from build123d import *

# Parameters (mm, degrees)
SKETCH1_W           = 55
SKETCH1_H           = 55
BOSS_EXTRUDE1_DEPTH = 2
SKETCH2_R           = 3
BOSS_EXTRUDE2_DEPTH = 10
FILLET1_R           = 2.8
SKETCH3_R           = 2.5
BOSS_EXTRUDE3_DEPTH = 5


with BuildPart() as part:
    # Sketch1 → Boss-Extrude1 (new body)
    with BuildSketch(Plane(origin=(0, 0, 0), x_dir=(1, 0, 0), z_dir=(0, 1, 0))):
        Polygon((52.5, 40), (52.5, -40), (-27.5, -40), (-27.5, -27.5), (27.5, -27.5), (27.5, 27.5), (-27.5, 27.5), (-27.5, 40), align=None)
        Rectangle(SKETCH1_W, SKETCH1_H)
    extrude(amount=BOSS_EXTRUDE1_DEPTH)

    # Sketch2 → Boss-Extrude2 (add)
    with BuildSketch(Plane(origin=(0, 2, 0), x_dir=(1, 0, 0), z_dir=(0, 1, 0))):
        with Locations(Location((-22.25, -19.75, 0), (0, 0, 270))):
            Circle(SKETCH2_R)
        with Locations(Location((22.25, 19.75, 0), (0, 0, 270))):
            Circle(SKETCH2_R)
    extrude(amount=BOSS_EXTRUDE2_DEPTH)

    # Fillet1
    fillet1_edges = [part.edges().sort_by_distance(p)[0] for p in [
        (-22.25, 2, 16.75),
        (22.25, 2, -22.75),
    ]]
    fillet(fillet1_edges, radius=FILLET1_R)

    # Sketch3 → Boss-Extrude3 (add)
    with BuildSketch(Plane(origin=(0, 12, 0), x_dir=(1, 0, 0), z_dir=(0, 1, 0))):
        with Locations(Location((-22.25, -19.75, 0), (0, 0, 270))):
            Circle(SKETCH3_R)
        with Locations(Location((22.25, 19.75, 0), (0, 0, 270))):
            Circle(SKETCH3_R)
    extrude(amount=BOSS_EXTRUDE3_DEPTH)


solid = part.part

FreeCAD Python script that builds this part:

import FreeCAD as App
import Part
import Sketcher
from FreeCAD import Vector


def edges_at(feature, points):
    """Names of the edges that pass closest to the given points."""
    edges = feature.Shape.Edges
    near = lambda p: min(range(len(edges)), key=lambda i: edges[i].distToShape(Part.Vertex(*p))[0])
    return sorted({f"Edge{near(p) + 1}" for p in points})

doc = App.newDocument("Part")
params = doc.addObject("Spreadsheet::Sheet", "Params")
for row, (alias, value) in enumerate([
    ("sketch1_width", "80 mm"),
    ("pad1_length", "2 mm"),
    ("sketch2_diameter", "6 mm"),
    ("pad2_length", "10 mm"),
    ("fillet_radius", "2.8 mm"),
    ("sketch3_diameter", "5 mm"),
    ("pad3_length", "5 mm"),
], start=1):
    params.set(f"A{row}", alias)
    params.set(f"B{row}", "=" + value)
    params.setAlias(f"B{row}", alias)

body = doc.addObject("PartDesign::Body", "Body")

# Sketch on XZ plane
sketch1 = body.newObject("Sketcher::SketchObject", "Sketch")
sketch1.AttachmentSupport = (doc.getObject("XZ_Plane"), [""])
sketch1.MapMode = "FlatFace"
sketch1.addGeometry([
    Part.LineSegment(Vector(52, 40, 0), Vector(52, -40, 0)),
    Part.LineSegment(Vector(52, -40, 0), Vector(-28, -40, 0)),
    Part.LineSegment(Vector(-28, -40, 0), Vector(-28, 40, 0)),
    Part.LineSegment(Vector(-28, 40, 0), Vector(52, 40, 0)),
], False)
sketch1.addConstraint([
    Sketcher.Constraint("Coincident", 0, 2, 1, 1),
    Sketcher.Constraint("Coincident", 1, 2, 2, 1),
    Sketcher.Constraint("Coincident", 2, 2, 3, 1),
    Sketcher.Constraint("Coincident", 3, 2, 0, 1),
    Sketcher.Constraint("Vertical", 0),
    Sketcher.Constraint("Horizontal", 1),
    Sketcher.Constraint("Vertical", 2),
    Sketcher.Constraint("Horizontal", 3),
    Sketcher.Constraint("Equal", 3, 0),
    Sketcher.Constraint("DistanceX", 1, 2, 1, 1, 80.0),
    Sketcher.Constraint("DistanceY", 0, 2, -1, 1, 40.0),
    Sketcher.Constraint("DistanceX", -1, 1, 0, 2, 52.5),
])
sketch1.setExpression("Constraints[9]", "Params.sketch1_width")
pad1 = body.newObject("PartDesign::Pad", "Pad")
pad1.Profile = sketch1
pad1.setExpression("Length", "Params.pad1_length")
pad1.Reversed = True

# Sketch on XZ plane
sketch2 = body.newObject("Sketcher::SketchObject", "Sketch001")
sketch2.AttachmentSupport = (doc.getObject("XZ_Plane"), [""])
sketch2.MapMode = "FlatFace"
sketch2.AttachmentOffset = App.Placement(Vector(0, 0, -2), App.Rotation())
sketch2.addGeometry([
    Part.Circle(Vector(-22.2, 19.8, 0), Vector(0, 0, 1), 3),
    Part.Circle(Vector(22.2, -19.8, 0), Vector(0, 0, 1), 3),
], False)
sketch2.addConstraint([
    Sketcher.Constraint("Equal", 0, 1),
    Sketcher.Constraint("Symmetric", 0, 3, 1, 3, -1, 1),
    Sketcher.Constraint("Diameter", 0, 6.0),
    Sketcher.Constraint("DistanceX", 0, 3, 1, 3, 44.5),
    Sketcher.Constraint("DistanceY", 1, 3, 0, 3, 39.5),
])
sketch2.setExpression("Constraints[2]", "Params.sketch2_diameter")
pad2 = body.newObject("PartDesign::Pad", "Pad001")
pad2.Profile = sketch2
pad2.setExpression("Length", "Params.pad2_length")
pad2.Reversed = True
doc.recompute()

fillet = body.newObject("PartDesign::Fillet", "Fillet")
fillet.Base = (pad2, edges_at(pad2, [(-22.25, 2, 16.75), (22.25, 2, -22.75)]))
fillet.setExpression("Radius", "Params.fillet_radius")

# Sketch on XZ plane
sketch3 = body.newObject("Sketcher::SketchObject", "Sketch002")
sketch3.AttachmentSupport = (doc.getObject("XZ_Plane"), [""])
sketch3.MapMode = "FlatFace"
sketch3.AttachmentOffset = App.Placement(Vector(0, 0, -12), App.Rotation())
sketch3.addGeometry([
    Part.Circle(Vector(-22.2, 19.8, 0), Vector(0, 0, 1), 2.5),
    Part.Circle(Vector(22.2, -19.8, 0), Vector(0, 0, 1), 2.5),
], False)
sketch3.addConstraint([
    Sketcher.Constraint("Equal", 0, 1),
    Sketcher.Constraint("Symmetric", 0, 3, 1, 3, -1, 1),
    Sketcher.Constraint("Diameter", 0, 5.0),
    Sketcher.Constraint("DistanceX", 0, 3, 1, 3, 44.5),
    Sketcher.Constraint("DistanceY", 1, 3, 0, 3, 39.5),
])
sketch3.setExpression("Constraints[2]", "Params.sketch3_diameter")
pad3 = body.newObject("PartDesign::Pad", "Pad002")
pad3.Profile = sketch3
pad3.setExpression("Length", "Params.pad3_length")
pad3.Reversed = True

doc.recompute()
